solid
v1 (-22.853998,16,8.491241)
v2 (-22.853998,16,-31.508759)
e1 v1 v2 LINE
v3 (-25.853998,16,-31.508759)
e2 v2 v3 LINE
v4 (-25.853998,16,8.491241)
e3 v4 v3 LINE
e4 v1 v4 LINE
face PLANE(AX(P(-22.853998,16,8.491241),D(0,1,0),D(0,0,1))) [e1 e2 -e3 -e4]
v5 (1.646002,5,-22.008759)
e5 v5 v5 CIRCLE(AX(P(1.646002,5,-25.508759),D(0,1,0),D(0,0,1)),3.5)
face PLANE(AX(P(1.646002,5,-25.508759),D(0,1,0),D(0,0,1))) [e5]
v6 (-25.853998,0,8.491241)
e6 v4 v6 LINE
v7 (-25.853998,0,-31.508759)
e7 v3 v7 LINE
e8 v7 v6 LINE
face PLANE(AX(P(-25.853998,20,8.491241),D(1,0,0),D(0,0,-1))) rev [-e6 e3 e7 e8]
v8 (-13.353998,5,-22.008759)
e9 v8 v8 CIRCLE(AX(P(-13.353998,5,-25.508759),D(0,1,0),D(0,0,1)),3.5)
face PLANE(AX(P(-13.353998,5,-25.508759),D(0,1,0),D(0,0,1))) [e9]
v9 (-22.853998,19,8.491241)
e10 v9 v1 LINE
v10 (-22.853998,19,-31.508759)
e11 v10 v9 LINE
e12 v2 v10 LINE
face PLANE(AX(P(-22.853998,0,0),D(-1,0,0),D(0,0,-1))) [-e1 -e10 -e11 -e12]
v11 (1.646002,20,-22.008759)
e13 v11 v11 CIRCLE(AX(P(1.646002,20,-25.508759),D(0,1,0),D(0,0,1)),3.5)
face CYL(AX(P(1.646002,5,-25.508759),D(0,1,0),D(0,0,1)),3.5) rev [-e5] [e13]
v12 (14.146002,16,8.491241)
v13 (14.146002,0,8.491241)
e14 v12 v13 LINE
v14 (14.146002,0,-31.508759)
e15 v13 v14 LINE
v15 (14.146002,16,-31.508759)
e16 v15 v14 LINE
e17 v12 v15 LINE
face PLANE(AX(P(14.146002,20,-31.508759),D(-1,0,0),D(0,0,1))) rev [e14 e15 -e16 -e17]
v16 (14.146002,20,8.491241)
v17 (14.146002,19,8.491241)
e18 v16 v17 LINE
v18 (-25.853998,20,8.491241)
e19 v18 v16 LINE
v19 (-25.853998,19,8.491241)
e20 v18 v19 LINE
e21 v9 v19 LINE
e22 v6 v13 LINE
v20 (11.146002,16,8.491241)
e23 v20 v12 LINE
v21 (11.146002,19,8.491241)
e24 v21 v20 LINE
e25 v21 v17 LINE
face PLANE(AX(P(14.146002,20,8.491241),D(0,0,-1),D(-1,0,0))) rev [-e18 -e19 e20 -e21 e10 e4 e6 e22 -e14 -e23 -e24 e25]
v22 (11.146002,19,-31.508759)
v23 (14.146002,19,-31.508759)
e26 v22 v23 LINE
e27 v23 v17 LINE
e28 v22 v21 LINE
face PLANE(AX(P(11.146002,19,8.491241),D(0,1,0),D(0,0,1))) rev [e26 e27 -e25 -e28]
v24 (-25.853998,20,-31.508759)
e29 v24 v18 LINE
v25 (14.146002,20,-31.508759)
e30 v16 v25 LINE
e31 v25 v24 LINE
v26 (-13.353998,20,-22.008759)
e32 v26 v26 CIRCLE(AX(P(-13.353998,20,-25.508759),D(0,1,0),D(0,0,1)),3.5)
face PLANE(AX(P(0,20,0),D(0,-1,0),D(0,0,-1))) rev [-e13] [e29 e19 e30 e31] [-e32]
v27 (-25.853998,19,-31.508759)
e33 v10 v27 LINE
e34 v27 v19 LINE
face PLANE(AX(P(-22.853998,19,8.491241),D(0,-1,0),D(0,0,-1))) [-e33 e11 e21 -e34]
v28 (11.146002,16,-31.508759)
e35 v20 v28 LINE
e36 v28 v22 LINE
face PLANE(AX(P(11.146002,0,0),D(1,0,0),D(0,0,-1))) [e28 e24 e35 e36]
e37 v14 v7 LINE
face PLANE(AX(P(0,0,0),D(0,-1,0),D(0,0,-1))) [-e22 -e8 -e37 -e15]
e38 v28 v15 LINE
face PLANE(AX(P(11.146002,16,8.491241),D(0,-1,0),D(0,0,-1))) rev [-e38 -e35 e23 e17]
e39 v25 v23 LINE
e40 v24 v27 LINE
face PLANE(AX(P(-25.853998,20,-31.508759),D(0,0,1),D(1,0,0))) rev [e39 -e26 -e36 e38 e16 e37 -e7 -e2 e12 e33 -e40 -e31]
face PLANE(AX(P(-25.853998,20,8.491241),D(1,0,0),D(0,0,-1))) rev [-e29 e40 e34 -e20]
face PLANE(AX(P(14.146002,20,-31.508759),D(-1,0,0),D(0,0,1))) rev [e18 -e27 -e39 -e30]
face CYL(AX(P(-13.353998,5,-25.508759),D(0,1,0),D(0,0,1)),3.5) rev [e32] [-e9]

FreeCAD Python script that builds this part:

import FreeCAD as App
import Part
import Sketcher

V = App.Vector
Q = App.Units.Quantity

doc = App.newDocument("Part")
body = doc.addObject("PartDesign::Body", "Body")

# Sketch on XZ plane
sketch1 = body.newObject("Sketcher::SketchObject", "Sketch")
sketch1.AttachmentSupport = (doc.getObject("XZ_Plane"), [""])
sketch1.MapMode = "FlatFace"
sketch1.addGeometry([
    Part.LineSegment(V(-26, -32, 0), V(-26, 8, 0)),
    Part.LineSegment(V(-26, 8, 0), V(14, 8, 0)),
    Part.LineSegment(V(14, 8, 0), V(14, -32, 0)),
    Part.LineSegment(V(14, -32, 0), V(-26, -32, 0)),
], False)
sketch1.addConstraint([
    Sketcher.Constraint("Coincident", 0, 2, 1, 1),
    Sketcher.Constraint("Coincident", 1, 2, 2, 1),
    Sketcher.Constraint("Coincident", 2, 2, 3, 1),
    Sketcher.Constraint("Coincident", 3, 2, 0, 1),
    Sketcher.Constraint("Vertical", 0),
    Sketcher.Constraint("Horizontal", 1),
    Sketcher.Constraint("Vertical", 2),
    Sketcher.Constraint("Horizontal", 3),
    Sketcher.Constraint("Equal", 3, 0),
    Sketcher.Constraint("DistanceX", 1, 1, 1, 2, Q("40 mm")),
    Sketcher.Constraint("DistanceY", -1, 1, 0, 2, Q("8.491241 mm")),
    Sketcher.Constraint("DistanceX", 0, 2, -1, 1, Q("25.853998 mm")),
])
pad1 = body.newObject("PartDesign::Pad", "Pad")
pad1.Profile = sketch1
pad1.Length = 20
pad1.Reversed = True

# Sketch on XZ plane
sketch2 = body.newObject("Sketcher::SketchObject", "Sketch001")
sketch2.AttachmentSupport = (doc.getObject("XZ_Plane"), [""])
sketch2.MapMode = "FlatFace"
sketch2.AttachmentOffset = App.Placement(V(0, 0, -20), App.Rotation())
sketch2.addGeometry([
    Part.Circle(V(-13.4, -25.5, 0), V(0, 0, 1), 3.5),
    Part.Circle(V(1.6, -25.5, 0), V(0, 0, 1), 3.5),
], False)
sketch2.addConstraint([
    Sketcher.Constraint("Equal", 0, 1),
    Sketcher.Constraint("Horizontal", 0, 3, 1, 3),
    Sketcher.Constraint("Diameter", 0, Q("7 mm")),
    Sketcher.Constraint("DistanceX", 0, 3, 1, 3, Q("15 mm")),
    Sketcher.Constraint("DistanceY", 0, 3, -1, 1, Q("25.508759 mm")),
    Sketcher.Constraint("DistanceX", 0, 3, -1, 1, Q("13.353998 mm")),
])
pocket1 = body.newObject("PartDesign::Pocket", "Pocket")
pocket1.Profile = sketch2
pocket1.Length = 15
pocket1.Reversed = True

# Sketch on YZ plane
sketch3 = body.newObject("Sketcher::SketchObject", "Sketch002")
sketch3.AttachmentSupport = (doc.getObject("YZ_Plane"), [""])
sketch3.MapMode = "FlatFace"
sketch3.AttachmentOffset = App.Placement(V(0, 0, 14.146002), App.Rotation())
sketch3.addGeometry([
    Part.LineSegment(V(19, 8.5, 0), V(16, 8.5, 0)),
    Part.LineSegment(V(16, 8.5, 0), V(16, -31.5, 0)),
    Part.LineSegment(V(16, -31.5, 0), V(19, -31.5, 0)),
    Part.LineSegment(V(19, -31.5, 0), V(19, 8.5, 0)),
], False)
sketch3.addConstraint([
    Sketcher.Constraint("Coincident", 0, 2, 1, 1),
    Sketcher.Constraint("Coincident", 1, 2, 2, 1),
    Sketcher.Constraint("Coincident", 2, 2, 3, 1),
    Sketcher.Constraint("Coincident", 3, 2, 0, 1),
    Sketcher.Constraint("Horizontal", 0),
    Sketcher.Constraint("Vertical", 1),
    Sketcher.Constraint("Horizontal", 2),
    Sketcher.Constraint("Vertical", 3),
    Sketcher.Constraint("DistanceX", 0, 2, 0, 1, Q("3 mm")),
    Sketcher.Constraint("DistanceY", 1, 2, 1, 1, Q("40 mm")),
    Sketcher.Constraint("DistanceX", -1, 1, 0, 2, Q("16 mm")),
    Sketcher.Constraint("DistanceY", -1, 1, 0, 2, Q("8.491241 mm")),
])
pocket2 = body.newObject("PartDesign::Pocket", "Pocket001")
pocket2.Profile = sketch3
pocket2.Length = 3
doc.recompute()

datumplane = body.newObject("PartDesign::Plane", "DatumPlane")
datumplane.AttachmentSupport = (doc.getObject("YZ_Plane"), [""])
datumplane.MapMode = "FlatFace"
datumplane.AttachmentOffset = App.Placement(V(0, 0, -5.853998), App.Rotation())
mirrored = body.newObject("PartDesign::Mirrored", "Mirrored")
mirrored.Originals = [pocket2]
mirrored.MirrorPlane = (datumplane, [""])
body.Tip = mirrored

doc.recompute()
